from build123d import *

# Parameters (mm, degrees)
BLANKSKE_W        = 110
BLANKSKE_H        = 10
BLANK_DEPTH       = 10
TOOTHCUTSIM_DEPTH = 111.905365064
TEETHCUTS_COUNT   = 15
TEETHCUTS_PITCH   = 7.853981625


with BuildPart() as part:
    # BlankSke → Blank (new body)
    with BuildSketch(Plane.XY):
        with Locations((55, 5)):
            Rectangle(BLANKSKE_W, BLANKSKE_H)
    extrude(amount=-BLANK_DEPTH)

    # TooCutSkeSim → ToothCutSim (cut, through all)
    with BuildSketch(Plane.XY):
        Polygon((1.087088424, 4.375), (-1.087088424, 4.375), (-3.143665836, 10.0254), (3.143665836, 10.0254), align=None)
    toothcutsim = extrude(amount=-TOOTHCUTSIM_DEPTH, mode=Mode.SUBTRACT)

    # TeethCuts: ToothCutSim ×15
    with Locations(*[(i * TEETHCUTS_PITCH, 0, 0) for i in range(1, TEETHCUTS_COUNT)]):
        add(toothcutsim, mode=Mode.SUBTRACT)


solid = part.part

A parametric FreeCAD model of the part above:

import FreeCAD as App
import Part
import Sketcher
Q = App.Units.Quantity

doc = App.newDocument("Part")
body = doc.addObject("PartDesign::Body", "Body")

# Sketch on XY plane
sketch1 = body.newObject("Sketcher::SketchObject", "Sketch")
sketch1.AttachmentSupport = (doc.getObject("XY_Plane"), [""])
sketch1.MapMode = "FlatFace"
sketch1.addGeometry([
    Part.LineSegment(App.Vector(0, 10, 0), App.Vector(0, 0, 0)),
    Part.LineSegment(App.Vector(0, 0, 0), App.Vector(110, 0, 0)),
    Part.LineSegment(App.Vector(110, 0, 0), App.Vector(110, 10, 0)),
    Part.LineSegment(App.Vector(110, 10, 0), App.Vector(0, 10, 0)),
], False)
sketch1.addConstraint([
    Sketcher.Constraint("Coincident", 0, 2, 1, 1),
    Sketcher.Constraint("Coincident", 1, 2, 2, 1),
    Sketcher.Constraint("Coincident", 2, 2, 3, 1),
    Sketcher.Constraint("Coincident", 3, 2, 0, 1),
    Sketcher.Constraint("Vertical", 0),
    Sketcher.Constraint("Horizontal", 1),
    Sketcher.Constraint("Vertical", 2),
    Sketcher.Constraint("Horizontal", 3),
    Sketcher.Constraint("Coincident", 0, 2, -1, 1),
    Sketcher.Constraint("DistanceX", 1, 1, 1, 2, Q("110 mm")),
    Sketcher.Constraint("DistanceY", 0, 2, 0, 1, Q("10 mm")),
])
pad1 = body.newObject("PartDesign::Pad", "Pad")
pad1.Profile = sketch1
pad1.Length = 10
pad1.Reversed = True

# Sketch on XY plane
sketch2 = body.newObject("Sketcher::SketchObject", "Sketch001")
sketch2.AttachmentSupport = (doc.getObject("XY_Plane"), [""])
sketch2.MapMode = "FlatFace"
sketch2.addGeometry([
    Part.LineSegment(App.Vector(-1.1, 4.4, 0), App.Vector(1.1, 4.4, 0)),
    Part.LineSegment(App.Vector(1.1, 4.4, 0), App.Vector(3.1, 10, 0)),
    Part.LineSegment(App.Vector(3.1, 10, 0), App.Vector(-3.1, 10, 0)),
    Part.LineSegment(App.Vector(-3.1, 10, 0), App.Vector(-1.1, 4.4, 0)),
], False)
sketch2.addConstraint([
    Sketcher.Constraint("Coincident", 0, 2, 1, 1),
    Sketcher.Constraint("Coincident", 1, 2, 2, 1),
    Sketcher.Constraint("Coincident", 2, 2, 3, 1),
    Sketcher.Constraint("Coincident", 3, 2, 0, 1),
    Sketcher.Constraint("Horizontal", 0),
    Sketcher.Constraint("Horizontal", 2),
    Sketcher.Constraint("Equal", 1, 3),
    Sketcher.Constraint("Angle", 1, Q("70 deg")),
    Sketcher.Constraint("DistanceY", -1, 1, 0, 2, Q("4.375 mm")),
    Sketcher.Constraint("DistanceX", 2, 2, 2, 1, Q("6.287332 mm")),
    Sketcher.Constraint("DistanceY", -1, 1, 1, 2, Q("10.0254 mm")),
    Sketcher.Constraint("DistanceX", -1, 1, 0, 2, Q("1.087088 mm")),
])
pocket1 = body.newObject("PartDesign::Pocket", "Pocket")
pocket1.Profile = sketch2
pocket1.Type = "ThroughAll"
doc.recompute()

linearpattern = body.newObject("PartDesign::LinearPattern", "LinearPattern")
linearpattern.Originals = [pocket1]
linearpattern.Direction = (doc.getObject("X_Axis"), [""])
linearpattern.Mode = "offset"
linearpattern.Offset = 7.853982
linearpattern.Occurrences = 15
body.Tip = linearpattern

doc.recompute()
